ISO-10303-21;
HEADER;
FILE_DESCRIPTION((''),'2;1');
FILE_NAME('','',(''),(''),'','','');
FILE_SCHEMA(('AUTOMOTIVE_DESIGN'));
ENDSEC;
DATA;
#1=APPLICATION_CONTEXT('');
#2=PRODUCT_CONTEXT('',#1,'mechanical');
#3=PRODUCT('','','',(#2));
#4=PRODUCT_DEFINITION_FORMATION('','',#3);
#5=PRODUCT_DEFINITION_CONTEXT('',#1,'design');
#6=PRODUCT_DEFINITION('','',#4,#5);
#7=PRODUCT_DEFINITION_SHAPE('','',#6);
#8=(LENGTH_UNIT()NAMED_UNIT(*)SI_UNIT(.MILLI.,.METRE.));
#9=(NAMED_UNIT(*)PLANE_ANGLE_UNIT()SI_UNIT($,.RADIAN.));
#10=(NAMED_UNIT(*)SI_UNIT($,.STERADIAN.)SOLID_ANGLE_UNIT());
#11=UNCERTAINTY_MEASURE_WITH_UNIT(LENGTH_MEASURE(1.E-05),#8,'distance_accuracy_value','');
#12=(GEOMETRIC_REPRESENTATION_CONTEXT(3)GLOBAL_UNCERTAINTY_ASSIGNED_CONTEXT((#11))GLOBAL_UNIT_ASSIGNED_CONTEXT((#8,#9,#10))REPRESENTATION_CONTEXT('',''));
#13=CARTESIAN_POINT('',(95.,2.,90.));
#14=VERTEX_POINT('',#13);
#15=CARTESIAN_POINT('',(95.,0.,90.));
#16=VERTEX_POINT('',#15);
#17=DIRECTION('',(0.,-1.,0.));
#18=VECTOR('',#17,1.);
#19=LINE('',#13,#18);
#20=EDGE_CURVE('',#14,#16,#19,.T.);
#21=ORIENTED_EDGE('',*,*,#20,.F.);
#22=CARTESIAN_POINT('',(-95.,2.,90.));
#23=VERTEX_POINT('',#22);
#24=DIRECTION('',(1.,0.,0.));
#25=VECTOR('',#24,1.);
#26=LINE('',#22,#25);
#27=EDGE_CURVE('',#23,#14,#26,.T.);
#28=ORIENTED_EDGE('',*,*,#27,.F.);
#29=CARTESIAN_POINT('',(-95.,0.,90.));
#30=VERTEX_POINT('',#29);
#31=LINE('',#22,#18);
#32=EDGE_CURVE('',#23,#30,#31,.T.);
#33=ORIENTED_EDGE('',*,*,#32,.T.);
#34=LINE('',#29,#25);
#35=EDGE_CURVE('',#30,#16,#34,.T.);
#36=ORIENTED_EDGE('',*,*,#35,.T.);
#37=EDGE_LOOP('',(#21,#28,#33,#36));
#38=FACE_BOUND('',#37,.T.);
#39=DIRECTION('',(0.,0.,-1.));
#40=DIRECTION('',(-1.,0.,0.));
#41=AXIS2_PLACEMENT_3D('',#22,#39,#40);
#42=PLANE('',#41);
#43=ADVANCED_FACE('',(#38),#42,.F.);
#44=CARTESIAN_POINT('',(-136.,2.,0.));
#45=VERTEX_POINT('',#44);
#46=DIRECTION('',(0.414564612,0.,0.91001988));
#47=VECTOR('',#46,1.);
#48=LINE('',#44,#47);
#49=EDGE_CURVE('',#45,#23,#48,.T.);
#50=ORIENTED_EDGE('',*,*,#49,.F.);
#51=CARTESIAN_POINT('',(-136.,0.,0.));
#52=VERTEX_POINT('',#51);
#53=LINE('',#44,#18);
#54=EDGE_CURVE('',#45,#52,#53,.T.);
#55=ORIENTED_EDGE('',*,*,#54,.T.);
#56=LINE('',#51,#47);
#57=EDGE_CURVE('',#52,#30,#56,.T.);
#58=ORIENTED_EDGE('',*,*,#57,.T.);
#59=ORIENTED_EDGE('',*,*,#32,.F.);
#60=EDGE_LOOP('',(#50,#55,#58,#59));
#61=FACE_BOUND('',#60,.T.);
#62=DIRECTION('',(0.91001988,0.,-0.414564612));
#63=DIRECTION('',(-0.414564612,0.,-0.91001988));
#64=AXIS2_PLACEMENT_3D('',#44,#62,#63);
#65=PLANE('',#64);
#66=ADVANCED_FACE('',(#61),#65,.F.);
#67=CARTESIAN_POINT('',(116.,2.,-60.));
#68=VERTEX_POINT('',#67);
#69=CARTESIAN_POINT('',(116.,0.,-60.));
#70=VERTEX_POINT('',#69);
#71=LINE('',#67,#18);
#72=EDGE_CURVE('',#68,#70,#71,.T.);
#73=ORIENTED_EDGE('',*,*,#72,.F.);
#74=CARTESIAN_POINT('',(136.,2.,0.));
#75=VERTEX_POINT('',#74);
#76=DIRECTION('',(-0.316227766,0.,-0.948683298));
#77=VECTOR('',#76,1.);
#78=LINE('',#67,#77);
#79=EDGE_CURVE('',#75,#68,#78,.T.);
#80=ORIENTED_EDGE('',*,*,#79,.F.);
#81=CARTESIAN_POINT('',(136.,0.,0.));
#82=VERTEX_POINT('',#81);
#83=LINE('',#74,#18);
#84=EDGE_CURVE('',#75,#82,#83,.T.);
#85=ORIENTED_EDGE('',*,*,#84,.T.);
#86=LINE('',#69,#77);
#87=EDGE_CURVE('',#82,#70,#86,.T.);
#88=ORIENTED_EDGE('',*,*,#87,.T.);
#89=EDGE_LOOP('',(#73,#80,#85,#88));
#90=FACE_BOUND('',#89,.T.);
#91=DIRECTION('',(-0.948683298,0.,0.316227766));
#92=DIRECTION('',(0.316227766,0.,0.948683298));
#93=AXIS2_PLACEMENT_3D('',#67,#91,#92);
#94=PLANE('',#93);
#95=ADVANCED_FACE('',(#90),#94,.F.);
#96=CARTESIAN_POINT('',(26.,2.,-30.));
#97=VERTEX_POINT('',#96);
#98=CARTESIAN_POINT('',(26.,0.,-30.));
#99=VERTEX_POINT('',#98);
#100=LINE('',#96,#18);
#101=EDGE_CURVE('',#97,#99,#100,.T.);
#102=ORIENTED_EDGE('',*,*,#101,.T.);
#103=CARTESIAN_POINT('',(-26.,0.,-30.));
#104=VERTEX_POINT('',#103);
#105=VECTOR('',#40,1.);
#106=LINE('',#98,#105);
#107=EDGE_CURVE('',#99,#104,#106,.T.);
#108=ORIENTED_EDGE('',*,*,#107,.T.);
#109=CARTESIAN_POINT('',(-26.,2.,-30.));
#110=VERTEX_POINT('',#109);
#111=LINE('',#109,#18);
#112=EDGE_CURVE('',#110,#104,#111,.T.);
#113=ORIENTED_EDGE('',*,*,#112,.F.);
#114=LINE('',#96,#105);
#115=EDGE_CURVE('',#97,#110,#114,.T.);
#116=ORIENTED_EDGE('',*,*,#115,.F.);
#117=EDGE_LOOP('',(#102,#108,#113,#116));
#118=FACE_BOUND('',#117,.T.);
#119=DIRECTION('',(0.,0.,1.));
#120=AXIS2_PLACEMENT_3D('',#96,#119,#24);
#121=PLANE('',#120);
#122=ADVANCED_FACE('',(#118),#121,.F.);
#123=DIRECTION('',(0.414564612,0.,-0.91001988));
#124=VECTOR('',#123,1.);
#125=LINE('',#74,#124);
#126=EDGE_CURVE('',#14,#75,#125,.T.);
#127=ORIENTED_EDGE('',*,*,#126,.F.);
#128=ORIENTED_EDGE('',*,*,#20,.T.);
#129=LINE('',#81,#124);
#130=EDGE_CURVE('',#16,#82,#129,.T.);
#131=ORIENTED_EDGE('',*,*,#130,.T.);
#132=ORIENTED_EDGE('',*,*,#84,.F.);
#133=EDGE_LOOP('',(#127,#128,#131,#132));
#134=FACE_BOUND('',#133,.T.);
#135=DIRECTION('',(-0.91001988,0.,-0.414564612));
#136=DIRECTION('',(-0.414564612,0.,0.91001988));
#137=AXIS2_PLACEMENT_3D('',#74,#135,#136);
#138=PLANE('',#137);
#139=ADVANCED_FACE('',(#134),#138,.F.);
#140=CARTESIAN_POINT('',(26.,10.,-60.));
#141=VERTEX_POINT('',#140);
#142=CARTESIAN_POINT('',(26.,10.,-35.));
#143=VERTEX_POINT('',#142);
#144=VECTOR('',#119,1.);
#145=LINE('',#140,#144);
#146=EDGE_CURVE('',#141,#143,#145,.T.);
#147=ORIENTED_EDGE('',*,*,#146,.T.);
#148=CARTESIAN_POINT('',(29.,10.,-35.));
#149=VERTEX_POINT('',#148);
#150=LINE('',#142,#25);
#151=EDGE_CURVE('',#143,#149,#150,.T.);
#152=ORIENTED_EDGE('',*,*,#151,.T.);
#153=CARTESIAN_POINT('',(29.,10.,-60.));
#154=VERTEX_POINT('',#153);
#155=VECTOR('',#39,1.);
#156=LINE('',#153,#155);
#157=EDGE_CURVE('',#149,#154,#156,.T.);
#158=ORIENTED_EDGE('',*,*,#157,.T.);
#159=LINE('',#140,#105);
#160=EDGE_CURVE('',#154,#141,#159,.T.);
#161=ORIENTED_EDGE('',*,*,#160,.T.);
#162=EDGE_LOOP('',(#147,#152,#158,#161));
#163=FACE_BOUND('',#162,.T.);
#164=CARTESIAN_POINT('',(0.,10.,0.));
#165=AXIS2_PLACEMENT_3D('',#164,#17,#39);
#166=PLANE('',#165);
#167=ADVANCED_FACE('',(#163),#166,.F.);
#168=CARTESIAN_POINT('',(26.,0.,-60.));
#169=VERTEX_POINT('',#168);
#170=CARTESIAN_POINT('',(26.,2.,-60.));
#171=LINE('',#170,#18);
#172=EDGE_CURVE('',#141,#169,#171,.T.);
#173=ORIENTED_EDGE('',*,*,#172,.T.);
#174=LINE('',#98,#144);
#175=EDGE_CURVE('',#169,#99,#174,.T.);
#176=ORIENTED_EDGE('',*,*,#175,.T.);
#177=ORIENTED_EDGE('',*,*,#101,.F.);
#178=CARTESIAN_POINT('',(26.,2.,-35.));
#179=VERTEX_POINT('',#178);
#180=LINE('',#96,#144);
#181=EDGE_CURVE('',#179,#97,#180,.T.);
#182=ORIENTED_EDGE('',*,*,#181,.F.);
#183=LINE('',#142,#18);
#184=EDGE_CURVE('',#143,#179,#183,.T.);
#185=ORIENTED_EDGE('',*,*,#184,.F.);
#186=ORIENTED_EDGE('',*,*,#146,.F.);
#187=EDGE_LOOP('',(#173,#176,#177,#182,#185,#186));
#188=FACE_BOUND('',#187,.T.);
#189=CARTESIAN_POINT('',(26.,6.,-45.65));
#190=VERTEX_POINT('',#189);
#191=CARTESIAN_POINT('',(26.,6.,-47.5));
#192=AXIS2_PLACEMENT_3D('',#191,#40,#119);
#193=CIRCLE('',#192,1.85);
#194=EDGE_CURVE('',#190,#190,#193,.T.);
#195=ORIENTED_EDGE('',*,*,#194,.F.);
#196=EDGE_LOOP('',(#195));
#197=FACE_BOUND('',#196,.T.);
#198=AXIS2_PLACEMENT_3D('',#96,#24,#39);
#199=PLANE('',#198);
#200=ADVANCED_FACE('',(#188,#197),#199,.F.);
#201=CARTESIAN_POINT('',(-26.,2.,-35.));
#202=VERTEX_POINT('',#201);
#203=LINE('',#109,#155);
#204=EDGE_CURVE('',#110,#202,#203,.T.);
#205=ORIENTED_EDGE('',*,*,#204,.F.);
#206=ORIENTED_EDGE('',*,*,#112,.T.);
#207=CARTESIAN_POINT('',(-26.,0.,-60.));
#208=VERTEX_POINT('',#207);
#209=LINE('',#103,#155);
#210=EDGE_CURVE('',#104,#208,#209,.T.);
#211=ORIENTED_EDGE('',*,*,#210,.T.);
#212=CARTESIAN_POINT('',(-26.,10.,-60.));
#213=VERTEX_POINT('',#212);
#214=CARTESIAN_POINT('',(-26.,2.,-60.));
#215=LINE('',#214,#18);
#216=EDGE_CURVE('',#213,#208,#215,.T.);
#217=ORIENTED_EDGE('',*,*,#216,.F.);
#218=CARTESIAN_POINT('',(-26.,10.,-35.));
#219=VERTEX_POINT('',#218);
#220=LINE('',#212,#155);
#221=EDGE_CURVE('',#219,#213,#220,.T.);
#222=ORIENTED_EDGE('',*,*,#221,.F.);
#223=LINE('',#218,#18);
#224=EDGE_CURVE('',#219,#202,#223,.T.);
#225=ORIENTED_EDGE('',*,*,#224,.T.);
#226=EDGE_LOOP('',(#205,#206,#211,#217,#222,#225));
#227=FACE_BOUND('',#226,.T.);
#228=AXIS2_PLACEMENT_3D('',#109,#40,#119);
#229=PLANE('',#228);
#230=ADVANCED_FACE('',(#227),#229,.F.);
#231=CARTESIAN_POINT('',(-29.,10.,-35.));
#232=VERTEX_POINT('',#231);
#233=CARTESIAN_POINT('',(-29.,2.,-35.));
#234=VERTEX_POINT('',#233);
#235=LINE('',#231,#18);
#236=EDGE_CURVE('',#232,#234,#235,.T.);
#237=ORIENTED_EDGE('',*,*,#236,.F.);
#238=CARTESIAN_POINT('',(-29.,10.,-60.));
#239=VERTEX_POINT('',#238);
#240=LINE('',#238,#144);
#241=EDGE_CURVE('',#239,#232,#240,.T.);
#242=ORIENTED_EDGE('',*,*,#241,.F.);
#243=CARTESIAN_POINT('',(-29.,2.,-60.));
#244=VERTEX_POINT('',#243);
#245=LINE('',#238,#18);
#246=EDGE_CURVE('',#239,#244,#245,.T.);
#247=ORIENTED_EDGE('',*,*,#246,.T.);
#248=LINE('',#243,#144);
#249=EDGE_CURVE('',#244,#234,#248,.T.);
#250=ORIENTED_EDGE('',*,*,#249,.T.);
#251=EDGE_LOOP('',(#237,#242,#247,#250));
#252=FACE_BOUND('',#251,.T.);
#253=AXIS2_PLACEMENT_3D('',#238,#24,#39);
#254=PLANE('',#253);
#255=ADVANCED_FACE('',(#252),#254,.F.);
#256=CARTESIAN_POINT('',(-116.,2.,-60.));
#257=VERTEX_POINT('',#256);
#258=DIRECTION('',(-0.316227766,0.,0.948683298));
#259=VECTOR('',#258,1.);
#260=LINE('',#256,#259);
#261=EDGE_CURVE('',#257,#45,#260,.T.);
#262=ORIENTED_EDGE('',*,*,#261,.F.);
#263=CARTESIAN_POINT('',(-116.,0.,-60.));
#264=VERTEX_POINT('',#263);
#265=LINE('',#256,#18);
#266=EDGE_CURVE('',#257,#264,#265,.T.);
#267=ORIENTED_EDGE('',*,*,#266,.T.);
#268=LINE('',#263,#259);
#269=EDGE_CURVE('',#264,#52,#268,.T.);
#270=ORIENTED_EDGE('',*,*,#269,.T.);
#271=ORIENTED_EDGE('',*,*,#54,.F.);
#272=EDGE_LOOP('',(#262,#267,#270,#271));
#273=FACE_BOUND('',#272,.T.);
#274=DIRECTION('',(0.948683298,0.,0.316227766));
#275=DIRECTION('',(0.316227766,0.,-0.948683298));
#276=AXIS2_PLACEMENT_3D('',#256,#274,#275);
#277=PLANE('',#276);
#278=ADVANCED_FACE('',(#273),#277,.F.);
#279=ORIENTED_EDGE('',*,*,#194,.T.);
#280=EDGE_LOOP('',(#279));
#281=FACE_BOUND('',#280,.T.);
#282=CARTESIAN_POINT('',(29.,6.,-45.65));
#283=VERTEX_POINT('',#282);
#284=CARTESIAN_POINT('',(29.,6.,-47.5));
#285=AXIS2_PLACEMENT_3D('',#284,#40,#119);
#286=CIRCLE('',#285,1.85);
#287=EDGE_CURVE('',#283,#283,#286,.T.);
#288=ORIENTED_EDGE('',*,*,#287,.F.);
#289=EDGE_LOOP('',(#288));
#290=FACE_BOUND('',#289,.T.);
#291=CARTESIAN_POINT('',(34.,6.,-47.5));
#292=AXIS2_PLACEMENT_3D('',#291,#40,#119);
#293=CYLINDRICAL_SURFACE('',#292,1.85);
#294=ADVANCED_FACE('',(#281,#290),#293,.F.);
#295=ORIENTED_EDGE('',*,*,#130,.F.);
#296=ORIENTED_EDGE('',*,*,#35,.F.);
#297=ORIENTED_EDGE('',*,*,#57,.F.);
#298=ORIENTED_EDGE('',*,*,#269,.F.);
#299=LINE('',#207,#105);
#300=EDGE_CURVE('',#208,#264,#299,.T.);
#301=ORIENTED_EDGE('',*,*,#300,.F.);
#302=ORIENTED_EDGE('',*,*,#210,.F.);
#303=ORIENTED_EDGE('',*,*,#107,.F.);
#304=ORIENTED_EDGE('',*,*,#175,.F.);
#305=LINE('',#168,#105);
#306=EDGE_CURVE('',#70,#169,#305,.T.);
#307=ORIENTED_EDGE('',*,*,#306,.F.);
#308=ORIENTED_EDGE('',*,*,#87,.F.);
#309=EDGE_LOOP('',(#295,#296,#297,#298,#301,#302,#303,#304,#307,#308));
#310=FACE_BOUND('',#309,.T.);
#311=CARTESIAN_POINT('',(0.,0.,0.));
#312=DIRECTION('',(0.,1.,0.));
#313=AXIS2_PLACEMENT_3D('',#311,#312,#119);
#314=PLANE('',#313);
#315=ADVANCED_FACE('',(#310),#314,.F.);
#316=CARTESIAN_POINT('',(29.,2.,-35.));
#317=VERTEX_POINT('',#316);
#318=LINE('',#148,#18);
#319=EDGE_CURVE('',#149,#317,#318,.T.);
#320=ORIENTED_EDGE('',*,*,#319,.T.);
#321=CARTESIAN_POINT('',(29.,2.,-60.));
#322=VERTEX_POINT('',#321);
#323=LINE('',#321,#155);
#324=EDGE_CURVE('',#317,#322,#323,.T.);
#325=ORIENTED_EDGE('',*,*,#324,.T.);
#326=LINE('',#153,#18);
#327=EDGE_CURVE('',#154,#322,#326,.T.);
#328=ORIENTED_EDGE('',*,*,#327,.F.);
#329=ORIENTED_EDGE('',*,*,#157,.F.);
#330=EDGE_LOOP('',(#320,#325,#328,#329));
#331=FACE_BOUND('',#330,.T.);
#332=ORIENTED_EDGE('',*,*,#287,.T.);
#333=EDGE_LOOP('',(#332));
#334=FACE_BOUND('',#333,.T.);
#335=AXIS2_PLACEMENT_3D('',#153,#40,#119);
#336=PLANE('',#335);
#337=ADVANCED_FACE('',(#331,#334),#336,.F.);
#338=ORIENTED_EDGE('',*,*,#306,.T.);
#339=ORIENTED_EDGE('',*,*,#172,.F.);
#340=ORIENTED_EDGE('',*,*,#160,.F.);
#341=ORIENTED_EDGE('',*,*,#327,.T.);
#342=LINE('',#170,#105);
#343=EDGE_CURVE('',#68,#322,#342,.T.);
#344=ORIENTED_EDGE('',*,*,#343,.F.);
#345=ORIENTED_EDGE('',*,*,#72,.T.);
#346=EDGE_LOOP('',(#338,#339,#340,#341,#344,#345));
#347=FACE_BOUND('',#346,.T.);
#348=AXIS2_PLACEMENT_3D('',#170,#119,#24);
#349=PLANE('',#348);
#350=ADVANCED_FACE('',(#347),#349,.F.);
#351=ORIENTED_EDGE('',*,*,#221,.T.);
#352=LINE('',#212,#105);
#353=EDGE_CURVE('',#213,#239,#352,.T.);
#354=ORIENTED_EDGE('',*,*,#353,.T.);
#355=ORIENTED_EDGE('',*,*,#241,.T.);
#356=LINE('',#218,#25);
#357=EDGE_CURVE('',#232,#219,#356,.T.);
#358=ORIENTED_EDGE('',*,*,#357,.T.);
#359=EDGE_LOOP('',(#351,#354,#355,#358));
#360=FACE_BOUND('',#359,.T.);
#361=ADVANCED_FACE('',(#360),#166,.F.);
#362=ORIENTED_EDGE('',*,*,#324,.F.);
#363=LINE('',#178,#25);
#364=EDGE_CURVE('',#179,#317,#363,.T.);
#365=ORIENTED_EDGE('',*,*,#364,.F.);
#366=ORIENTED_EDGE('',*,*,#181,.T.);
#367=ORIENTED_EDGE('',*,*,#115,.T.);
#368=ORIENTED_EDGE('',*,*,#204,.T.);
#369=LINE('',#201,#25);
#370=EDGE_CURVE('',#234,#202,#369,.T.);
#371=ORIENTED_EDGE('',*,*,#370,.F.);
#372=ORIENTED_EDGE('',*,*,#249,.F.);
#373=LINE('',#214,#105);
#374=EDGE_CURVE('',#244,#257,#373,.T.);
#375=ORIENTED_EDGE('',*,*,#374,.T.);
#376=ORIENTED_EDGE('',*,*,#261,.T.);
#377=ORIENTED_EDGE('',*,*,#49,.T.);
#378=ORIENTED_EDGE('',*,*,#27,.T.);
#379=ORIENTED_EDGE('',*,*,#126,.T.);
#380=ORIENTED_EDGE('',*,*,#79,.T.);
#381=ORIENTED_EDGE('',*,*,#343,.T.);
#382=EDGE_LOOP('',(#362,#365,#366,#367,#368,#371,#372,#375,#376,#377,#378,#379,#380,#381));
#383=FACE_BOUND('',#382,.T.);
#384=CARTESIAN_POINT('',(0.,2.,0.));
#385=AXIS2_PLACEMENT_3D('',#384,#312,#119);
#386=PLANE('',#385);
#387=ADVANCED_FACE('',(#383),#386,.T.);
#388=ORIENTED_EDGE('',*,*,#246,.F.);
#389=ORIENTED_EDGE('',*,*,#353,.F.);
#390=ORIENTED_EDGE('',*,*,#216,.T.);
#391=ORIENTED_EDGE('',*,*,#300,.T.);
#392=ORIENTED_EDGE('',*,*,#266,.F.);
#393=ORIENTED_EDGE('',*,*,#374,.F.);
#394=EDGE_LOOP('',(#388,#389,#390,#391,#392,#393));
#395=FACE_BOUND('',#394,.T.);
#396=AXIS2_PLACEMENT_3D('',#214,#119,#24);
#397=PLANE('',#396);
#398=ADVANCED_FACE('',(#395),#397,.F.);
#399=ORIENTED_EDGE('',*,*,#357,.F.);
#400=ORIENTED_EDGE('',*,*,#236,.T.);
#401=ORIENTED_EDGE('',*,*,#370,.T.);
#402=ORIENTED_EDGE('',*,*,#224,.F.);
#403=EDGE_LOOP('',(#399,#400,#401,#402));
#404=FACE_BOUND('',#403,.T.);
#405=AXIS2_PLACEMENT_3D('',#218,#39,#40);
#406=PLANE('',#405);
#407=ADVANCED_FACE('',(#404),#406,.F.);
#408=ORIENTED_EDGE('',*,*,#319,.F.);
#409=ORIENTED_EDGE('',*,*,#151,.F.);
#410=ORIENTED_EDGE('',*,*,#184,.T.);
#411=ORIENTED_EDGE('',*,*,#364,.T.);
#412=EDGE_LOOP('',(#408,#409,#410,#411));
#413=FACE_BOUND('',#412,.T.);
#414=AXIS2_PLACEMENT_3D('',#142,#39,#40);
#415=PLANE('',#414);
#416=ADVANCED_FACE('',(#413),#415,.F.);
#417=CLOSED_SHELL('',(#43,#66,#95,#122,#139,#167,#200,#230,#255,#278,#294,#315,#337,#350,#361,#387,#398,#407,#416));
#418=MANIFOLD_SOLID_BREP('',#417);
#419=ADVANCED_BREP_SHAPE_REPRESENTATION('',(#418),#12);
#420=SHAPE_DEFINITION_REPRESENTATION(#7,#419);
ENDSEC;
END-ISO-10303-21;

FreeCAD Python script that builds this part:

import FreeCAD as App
import Part
import Sketcher

doc = App.newDocument("Part")
body = doc.addObject("PartDesign::Body", "Body")

# Sketch on XZ plane
sketch1 = doc.addObject("Sketcher::SketchObject", "Sketch")
body.addObject(sketch1)
sketch1.AttachmentSupport = (doc.XZ_Plane, [""])
sketch1.MapMode = "FlatFace"
sketch1.addGeometry([
    Part.LineSegment(App.Vector(26, -30, 0), App.Vector(-26, -30, 0)),  # 0
    Part.LineSegment(App.Vector(-26, -30, 0), App.Vector(-26, -60, 0)),  # 1
    Part.LineSegment(App.Vector(-26, -60, 0), App.Vector(-116, -60, 0)),  # 2
    Part.LineSegment(App.Vector(-116, -60, 0), App.Vector(-136, 0, 0)),  # 3
    Part.LineSegment(App.Vector(-136, 0, 0), App.Vector(-95, 90, 0)),  # 4
    Part.LineSegment(App.Vector(-95, 90, 0), App.Vector(95, 90, 0)),  # 5
    Part.LineSegment(App.Vector(95, 90, 0), App.Vector(136, 0, 0)),  # 6
    Part.LineSegment(App.Vector(136, 0, 0), App.Vector(116, -60, 0)),  # 7
    Part.LineSegment(App.Vector(116, -60, 0), App.Vector(26, -60, 0)),  # 8
    Part.LineSegment(App.Vector(26, -60, 0), App.Vector(26, -30, 0)),  # 9
], False)
sketch1.addConstraint([
    Sketcher.Constraint("Coincident", 0, 2, 1, 1),
    Sketcher.Constraint("Coincident", 1, 2, 2, 1),
    Sketcher.Constraint("Coincident", 2, 2, 3, 1),
    Sketcher.Constraint("Coincident", 3, 2, 4, 1),
    Sketcher.Constraint("Coincident", 4, 2, 5, 1),
    Sketcher.Constraint("Coincident", 5, 2, 6, 1),
    Sketcher.Constraint("Coincident", 6, 2, 7, 1),
    Sketcher.Constraint("Coincident", 7, 2, 8, 1),
    Sketcher.Constraint("Coincident", 8, 2, 9, 1),
    Sketcher.Constraint("Coincident", 9, 2, 0, 1),
    Sketcher.Constraint("Horizontal", 0),
    Sketcher.Constraint("Vertical", 1),
    Sketcher.Constraint("Horizontal", 2),
    Sketcher.Constraint("Horizontal", 5),
    Sketcher.Constraint("Horizontal", 8),
    Sketcher.Constraint("Vertical", 9),
    Sketcher.Constraint("Symmetric", 3, 2, 6, 2, -1, 1),
    Sketcher.Constraint("Symmetric", 2, 2, 7, 2, -2),
    Sketcher.Constraint("PointOnObject", 3, 2, -1),
    Sketcher.Constraint("Equal", 2, 8),
    Sketcher.Constraint("Equal", 4, 6),
    Sketcher.Constraint("DistanceX", 0, 2, 0, 1, 52.0),
    Sketcher.Constraint("DistanceX", 2, 2, 2, 1, 90.0),
    Sketcher.Constraint("DistanceX", 5, 1, 5, 2, 190.0),
    Sketcher.Constraint("DistanceY", 1, 2, 1, 1, 30.0),
    Sketcher.Constraint("DistanceY", 0, 2, -1, 1, 30.0),
    Sketcher.Constraint("DistanceX", 3, 2, -1, 1, 136.0),
    Sketcher.Constraint("DistanceY", -1, 1, 4, 2, 90.0),
])
pad1 = doc.addObject("PartDesign::Pad", "Pad")
body.addObject(pad1)
pad1.Profile = sketch1
pad1.Length = 2
pad1.Reversed = True

# Sketch on XZ plane
sketch2 = doc.addObject("Sketcher::SketchObject", "Sketch001")
body.addObject(sketch2)
sketch2.AttachmentSupport = (doc.XZ_Plane, [""])
sketch2.MapMode = "FlatFace"
sketch2.AttachmentOffset = App.Placement(App.Vector(0, 0, -2), App.Rotation())
sketch2.addGeometry([
    Part.LineSegment(App.Vector(26, -60, 0), App.Vector(26, -35, 0)),  # 0
    Part.LineSegment(App.Vector(26, -35, 0), App.Vector(29, -35, 0)),  # 1
    Part.LineSegment(App.Vector(29, -35, 0), App.Vector(29, -60, 0)),  # 2
    Part.LineSegment(App.Vector(29, -60, 0), App.Vector(26, -60, 0)),  # 3
    Part.LineSegment(App.Vector(-29, -60, 0), App.Vector(-29, -35, 0)),  # 4
    Part.LineSegment(App.Vector(-29, -35, 0), App.Vector(-26, -35, 0)),  # 5
    Part.LineSegment(App.Vector(-26, -35, 0), App.Vector(-26, -60, 0)),  # 6
    Part.LineSegment(App.Vector(-26, -60, 0), App.Vector(-29, -60, 0)),  # 7
], False)
sketch2.addConstraint([
    Sketcher.Constraint("Coincident", 0, 2, 1, 1),
    Sketcher.Constraint("Coincident", 1, 2, 2, 1),
    Sketcher.Constraint("Coincident", 2, 2, 3, 1),
    Sketcher.Constraint("Coincident", 3, 2, 0, 1),
    Sketcher.Constraint("Coincident", 4, 2, 5, 1),
    Sketcher.Constraint("Coincident", 5, 2, 6, 1),
    Sketcher.Constraint("Coincident", 6, 2, 7, 1),
    Sketcher.Constraint("Coincident", 7, 2, 4, 1),
    Sketcher.Constraint("Vertical", 0),
    Sketcher.Constraint("Horizontal", 1),
    Sketcher.Constraint("Vertical", 2),
    Sketcher.Constraint("Horizontal", 3),
    Sketcher.Constraint("Vertical", 4),
    Sketcher.Constraint("Horizontal", 5),
    Sketcher.Constraint("Vertical", 6),
    Sketcher.Constraint("Horizontal", 7),
    Sketcher.Constraint("Symmetric", 1, 2, 4, 2, -2),
    Sketcher.Constraint("Symmetric", 3, 2, 6, 2, -2),
    Sketcher.Constraint("DistanceX", 1, 1, 1, 2, 3.0),
    Sketcher.Constraint("DistanceY", 0, 1, 0, 2, 25.0),
    Sketcher.Constraint("DistanceX", -1, 1, 0, 2, 26.0),
    Sketcher.Constraint("DistanceY", 0, 2, -1, 1, 35.0),
])
pad2 = doc.addObject("PartDesign::Pad", "Pad001")
body.addObject(pad2)
pad2.Profile = sketch2
pad2.Length = 8
pad2.Reversed = True

# Sketch on YZ plane
sketch3 = doc.addObject("Sketcher::SketchObject", "Sketch002")
body.addObject(sketch3)
sketch3.AttachmentSupport = (doc.YZ_Plane, [""])
sketch3.MapMode = "FlatFace"
sketch3.AttachmentOffset = App.Placement(App.Vector(0, 0, 26), App.Rotation())
sketch3.addGeometry(Part.Circle(App.Vector(6, -47.5, 0), App.Vector(0, 0, 1), 1.9), False)
sketch3.addConstraint([
    Sketcher.Constraint("Diameter", 0, 3.7),
    Sketcher.Constraint("DistanceX", -1, 1, 0, 3, 6.0),
    Sketcher.Constraint("DistanceY", 0, 3, -1, 1, 47.5),
])
pocket1 = doc.addObject("PartDesign::Pocket", "Pocket")
body.addObject(pocket1)
pocket1.Profile = sketch3
pocket1.Length = 8
pocket1.Reversed = True

doc.recompute()
